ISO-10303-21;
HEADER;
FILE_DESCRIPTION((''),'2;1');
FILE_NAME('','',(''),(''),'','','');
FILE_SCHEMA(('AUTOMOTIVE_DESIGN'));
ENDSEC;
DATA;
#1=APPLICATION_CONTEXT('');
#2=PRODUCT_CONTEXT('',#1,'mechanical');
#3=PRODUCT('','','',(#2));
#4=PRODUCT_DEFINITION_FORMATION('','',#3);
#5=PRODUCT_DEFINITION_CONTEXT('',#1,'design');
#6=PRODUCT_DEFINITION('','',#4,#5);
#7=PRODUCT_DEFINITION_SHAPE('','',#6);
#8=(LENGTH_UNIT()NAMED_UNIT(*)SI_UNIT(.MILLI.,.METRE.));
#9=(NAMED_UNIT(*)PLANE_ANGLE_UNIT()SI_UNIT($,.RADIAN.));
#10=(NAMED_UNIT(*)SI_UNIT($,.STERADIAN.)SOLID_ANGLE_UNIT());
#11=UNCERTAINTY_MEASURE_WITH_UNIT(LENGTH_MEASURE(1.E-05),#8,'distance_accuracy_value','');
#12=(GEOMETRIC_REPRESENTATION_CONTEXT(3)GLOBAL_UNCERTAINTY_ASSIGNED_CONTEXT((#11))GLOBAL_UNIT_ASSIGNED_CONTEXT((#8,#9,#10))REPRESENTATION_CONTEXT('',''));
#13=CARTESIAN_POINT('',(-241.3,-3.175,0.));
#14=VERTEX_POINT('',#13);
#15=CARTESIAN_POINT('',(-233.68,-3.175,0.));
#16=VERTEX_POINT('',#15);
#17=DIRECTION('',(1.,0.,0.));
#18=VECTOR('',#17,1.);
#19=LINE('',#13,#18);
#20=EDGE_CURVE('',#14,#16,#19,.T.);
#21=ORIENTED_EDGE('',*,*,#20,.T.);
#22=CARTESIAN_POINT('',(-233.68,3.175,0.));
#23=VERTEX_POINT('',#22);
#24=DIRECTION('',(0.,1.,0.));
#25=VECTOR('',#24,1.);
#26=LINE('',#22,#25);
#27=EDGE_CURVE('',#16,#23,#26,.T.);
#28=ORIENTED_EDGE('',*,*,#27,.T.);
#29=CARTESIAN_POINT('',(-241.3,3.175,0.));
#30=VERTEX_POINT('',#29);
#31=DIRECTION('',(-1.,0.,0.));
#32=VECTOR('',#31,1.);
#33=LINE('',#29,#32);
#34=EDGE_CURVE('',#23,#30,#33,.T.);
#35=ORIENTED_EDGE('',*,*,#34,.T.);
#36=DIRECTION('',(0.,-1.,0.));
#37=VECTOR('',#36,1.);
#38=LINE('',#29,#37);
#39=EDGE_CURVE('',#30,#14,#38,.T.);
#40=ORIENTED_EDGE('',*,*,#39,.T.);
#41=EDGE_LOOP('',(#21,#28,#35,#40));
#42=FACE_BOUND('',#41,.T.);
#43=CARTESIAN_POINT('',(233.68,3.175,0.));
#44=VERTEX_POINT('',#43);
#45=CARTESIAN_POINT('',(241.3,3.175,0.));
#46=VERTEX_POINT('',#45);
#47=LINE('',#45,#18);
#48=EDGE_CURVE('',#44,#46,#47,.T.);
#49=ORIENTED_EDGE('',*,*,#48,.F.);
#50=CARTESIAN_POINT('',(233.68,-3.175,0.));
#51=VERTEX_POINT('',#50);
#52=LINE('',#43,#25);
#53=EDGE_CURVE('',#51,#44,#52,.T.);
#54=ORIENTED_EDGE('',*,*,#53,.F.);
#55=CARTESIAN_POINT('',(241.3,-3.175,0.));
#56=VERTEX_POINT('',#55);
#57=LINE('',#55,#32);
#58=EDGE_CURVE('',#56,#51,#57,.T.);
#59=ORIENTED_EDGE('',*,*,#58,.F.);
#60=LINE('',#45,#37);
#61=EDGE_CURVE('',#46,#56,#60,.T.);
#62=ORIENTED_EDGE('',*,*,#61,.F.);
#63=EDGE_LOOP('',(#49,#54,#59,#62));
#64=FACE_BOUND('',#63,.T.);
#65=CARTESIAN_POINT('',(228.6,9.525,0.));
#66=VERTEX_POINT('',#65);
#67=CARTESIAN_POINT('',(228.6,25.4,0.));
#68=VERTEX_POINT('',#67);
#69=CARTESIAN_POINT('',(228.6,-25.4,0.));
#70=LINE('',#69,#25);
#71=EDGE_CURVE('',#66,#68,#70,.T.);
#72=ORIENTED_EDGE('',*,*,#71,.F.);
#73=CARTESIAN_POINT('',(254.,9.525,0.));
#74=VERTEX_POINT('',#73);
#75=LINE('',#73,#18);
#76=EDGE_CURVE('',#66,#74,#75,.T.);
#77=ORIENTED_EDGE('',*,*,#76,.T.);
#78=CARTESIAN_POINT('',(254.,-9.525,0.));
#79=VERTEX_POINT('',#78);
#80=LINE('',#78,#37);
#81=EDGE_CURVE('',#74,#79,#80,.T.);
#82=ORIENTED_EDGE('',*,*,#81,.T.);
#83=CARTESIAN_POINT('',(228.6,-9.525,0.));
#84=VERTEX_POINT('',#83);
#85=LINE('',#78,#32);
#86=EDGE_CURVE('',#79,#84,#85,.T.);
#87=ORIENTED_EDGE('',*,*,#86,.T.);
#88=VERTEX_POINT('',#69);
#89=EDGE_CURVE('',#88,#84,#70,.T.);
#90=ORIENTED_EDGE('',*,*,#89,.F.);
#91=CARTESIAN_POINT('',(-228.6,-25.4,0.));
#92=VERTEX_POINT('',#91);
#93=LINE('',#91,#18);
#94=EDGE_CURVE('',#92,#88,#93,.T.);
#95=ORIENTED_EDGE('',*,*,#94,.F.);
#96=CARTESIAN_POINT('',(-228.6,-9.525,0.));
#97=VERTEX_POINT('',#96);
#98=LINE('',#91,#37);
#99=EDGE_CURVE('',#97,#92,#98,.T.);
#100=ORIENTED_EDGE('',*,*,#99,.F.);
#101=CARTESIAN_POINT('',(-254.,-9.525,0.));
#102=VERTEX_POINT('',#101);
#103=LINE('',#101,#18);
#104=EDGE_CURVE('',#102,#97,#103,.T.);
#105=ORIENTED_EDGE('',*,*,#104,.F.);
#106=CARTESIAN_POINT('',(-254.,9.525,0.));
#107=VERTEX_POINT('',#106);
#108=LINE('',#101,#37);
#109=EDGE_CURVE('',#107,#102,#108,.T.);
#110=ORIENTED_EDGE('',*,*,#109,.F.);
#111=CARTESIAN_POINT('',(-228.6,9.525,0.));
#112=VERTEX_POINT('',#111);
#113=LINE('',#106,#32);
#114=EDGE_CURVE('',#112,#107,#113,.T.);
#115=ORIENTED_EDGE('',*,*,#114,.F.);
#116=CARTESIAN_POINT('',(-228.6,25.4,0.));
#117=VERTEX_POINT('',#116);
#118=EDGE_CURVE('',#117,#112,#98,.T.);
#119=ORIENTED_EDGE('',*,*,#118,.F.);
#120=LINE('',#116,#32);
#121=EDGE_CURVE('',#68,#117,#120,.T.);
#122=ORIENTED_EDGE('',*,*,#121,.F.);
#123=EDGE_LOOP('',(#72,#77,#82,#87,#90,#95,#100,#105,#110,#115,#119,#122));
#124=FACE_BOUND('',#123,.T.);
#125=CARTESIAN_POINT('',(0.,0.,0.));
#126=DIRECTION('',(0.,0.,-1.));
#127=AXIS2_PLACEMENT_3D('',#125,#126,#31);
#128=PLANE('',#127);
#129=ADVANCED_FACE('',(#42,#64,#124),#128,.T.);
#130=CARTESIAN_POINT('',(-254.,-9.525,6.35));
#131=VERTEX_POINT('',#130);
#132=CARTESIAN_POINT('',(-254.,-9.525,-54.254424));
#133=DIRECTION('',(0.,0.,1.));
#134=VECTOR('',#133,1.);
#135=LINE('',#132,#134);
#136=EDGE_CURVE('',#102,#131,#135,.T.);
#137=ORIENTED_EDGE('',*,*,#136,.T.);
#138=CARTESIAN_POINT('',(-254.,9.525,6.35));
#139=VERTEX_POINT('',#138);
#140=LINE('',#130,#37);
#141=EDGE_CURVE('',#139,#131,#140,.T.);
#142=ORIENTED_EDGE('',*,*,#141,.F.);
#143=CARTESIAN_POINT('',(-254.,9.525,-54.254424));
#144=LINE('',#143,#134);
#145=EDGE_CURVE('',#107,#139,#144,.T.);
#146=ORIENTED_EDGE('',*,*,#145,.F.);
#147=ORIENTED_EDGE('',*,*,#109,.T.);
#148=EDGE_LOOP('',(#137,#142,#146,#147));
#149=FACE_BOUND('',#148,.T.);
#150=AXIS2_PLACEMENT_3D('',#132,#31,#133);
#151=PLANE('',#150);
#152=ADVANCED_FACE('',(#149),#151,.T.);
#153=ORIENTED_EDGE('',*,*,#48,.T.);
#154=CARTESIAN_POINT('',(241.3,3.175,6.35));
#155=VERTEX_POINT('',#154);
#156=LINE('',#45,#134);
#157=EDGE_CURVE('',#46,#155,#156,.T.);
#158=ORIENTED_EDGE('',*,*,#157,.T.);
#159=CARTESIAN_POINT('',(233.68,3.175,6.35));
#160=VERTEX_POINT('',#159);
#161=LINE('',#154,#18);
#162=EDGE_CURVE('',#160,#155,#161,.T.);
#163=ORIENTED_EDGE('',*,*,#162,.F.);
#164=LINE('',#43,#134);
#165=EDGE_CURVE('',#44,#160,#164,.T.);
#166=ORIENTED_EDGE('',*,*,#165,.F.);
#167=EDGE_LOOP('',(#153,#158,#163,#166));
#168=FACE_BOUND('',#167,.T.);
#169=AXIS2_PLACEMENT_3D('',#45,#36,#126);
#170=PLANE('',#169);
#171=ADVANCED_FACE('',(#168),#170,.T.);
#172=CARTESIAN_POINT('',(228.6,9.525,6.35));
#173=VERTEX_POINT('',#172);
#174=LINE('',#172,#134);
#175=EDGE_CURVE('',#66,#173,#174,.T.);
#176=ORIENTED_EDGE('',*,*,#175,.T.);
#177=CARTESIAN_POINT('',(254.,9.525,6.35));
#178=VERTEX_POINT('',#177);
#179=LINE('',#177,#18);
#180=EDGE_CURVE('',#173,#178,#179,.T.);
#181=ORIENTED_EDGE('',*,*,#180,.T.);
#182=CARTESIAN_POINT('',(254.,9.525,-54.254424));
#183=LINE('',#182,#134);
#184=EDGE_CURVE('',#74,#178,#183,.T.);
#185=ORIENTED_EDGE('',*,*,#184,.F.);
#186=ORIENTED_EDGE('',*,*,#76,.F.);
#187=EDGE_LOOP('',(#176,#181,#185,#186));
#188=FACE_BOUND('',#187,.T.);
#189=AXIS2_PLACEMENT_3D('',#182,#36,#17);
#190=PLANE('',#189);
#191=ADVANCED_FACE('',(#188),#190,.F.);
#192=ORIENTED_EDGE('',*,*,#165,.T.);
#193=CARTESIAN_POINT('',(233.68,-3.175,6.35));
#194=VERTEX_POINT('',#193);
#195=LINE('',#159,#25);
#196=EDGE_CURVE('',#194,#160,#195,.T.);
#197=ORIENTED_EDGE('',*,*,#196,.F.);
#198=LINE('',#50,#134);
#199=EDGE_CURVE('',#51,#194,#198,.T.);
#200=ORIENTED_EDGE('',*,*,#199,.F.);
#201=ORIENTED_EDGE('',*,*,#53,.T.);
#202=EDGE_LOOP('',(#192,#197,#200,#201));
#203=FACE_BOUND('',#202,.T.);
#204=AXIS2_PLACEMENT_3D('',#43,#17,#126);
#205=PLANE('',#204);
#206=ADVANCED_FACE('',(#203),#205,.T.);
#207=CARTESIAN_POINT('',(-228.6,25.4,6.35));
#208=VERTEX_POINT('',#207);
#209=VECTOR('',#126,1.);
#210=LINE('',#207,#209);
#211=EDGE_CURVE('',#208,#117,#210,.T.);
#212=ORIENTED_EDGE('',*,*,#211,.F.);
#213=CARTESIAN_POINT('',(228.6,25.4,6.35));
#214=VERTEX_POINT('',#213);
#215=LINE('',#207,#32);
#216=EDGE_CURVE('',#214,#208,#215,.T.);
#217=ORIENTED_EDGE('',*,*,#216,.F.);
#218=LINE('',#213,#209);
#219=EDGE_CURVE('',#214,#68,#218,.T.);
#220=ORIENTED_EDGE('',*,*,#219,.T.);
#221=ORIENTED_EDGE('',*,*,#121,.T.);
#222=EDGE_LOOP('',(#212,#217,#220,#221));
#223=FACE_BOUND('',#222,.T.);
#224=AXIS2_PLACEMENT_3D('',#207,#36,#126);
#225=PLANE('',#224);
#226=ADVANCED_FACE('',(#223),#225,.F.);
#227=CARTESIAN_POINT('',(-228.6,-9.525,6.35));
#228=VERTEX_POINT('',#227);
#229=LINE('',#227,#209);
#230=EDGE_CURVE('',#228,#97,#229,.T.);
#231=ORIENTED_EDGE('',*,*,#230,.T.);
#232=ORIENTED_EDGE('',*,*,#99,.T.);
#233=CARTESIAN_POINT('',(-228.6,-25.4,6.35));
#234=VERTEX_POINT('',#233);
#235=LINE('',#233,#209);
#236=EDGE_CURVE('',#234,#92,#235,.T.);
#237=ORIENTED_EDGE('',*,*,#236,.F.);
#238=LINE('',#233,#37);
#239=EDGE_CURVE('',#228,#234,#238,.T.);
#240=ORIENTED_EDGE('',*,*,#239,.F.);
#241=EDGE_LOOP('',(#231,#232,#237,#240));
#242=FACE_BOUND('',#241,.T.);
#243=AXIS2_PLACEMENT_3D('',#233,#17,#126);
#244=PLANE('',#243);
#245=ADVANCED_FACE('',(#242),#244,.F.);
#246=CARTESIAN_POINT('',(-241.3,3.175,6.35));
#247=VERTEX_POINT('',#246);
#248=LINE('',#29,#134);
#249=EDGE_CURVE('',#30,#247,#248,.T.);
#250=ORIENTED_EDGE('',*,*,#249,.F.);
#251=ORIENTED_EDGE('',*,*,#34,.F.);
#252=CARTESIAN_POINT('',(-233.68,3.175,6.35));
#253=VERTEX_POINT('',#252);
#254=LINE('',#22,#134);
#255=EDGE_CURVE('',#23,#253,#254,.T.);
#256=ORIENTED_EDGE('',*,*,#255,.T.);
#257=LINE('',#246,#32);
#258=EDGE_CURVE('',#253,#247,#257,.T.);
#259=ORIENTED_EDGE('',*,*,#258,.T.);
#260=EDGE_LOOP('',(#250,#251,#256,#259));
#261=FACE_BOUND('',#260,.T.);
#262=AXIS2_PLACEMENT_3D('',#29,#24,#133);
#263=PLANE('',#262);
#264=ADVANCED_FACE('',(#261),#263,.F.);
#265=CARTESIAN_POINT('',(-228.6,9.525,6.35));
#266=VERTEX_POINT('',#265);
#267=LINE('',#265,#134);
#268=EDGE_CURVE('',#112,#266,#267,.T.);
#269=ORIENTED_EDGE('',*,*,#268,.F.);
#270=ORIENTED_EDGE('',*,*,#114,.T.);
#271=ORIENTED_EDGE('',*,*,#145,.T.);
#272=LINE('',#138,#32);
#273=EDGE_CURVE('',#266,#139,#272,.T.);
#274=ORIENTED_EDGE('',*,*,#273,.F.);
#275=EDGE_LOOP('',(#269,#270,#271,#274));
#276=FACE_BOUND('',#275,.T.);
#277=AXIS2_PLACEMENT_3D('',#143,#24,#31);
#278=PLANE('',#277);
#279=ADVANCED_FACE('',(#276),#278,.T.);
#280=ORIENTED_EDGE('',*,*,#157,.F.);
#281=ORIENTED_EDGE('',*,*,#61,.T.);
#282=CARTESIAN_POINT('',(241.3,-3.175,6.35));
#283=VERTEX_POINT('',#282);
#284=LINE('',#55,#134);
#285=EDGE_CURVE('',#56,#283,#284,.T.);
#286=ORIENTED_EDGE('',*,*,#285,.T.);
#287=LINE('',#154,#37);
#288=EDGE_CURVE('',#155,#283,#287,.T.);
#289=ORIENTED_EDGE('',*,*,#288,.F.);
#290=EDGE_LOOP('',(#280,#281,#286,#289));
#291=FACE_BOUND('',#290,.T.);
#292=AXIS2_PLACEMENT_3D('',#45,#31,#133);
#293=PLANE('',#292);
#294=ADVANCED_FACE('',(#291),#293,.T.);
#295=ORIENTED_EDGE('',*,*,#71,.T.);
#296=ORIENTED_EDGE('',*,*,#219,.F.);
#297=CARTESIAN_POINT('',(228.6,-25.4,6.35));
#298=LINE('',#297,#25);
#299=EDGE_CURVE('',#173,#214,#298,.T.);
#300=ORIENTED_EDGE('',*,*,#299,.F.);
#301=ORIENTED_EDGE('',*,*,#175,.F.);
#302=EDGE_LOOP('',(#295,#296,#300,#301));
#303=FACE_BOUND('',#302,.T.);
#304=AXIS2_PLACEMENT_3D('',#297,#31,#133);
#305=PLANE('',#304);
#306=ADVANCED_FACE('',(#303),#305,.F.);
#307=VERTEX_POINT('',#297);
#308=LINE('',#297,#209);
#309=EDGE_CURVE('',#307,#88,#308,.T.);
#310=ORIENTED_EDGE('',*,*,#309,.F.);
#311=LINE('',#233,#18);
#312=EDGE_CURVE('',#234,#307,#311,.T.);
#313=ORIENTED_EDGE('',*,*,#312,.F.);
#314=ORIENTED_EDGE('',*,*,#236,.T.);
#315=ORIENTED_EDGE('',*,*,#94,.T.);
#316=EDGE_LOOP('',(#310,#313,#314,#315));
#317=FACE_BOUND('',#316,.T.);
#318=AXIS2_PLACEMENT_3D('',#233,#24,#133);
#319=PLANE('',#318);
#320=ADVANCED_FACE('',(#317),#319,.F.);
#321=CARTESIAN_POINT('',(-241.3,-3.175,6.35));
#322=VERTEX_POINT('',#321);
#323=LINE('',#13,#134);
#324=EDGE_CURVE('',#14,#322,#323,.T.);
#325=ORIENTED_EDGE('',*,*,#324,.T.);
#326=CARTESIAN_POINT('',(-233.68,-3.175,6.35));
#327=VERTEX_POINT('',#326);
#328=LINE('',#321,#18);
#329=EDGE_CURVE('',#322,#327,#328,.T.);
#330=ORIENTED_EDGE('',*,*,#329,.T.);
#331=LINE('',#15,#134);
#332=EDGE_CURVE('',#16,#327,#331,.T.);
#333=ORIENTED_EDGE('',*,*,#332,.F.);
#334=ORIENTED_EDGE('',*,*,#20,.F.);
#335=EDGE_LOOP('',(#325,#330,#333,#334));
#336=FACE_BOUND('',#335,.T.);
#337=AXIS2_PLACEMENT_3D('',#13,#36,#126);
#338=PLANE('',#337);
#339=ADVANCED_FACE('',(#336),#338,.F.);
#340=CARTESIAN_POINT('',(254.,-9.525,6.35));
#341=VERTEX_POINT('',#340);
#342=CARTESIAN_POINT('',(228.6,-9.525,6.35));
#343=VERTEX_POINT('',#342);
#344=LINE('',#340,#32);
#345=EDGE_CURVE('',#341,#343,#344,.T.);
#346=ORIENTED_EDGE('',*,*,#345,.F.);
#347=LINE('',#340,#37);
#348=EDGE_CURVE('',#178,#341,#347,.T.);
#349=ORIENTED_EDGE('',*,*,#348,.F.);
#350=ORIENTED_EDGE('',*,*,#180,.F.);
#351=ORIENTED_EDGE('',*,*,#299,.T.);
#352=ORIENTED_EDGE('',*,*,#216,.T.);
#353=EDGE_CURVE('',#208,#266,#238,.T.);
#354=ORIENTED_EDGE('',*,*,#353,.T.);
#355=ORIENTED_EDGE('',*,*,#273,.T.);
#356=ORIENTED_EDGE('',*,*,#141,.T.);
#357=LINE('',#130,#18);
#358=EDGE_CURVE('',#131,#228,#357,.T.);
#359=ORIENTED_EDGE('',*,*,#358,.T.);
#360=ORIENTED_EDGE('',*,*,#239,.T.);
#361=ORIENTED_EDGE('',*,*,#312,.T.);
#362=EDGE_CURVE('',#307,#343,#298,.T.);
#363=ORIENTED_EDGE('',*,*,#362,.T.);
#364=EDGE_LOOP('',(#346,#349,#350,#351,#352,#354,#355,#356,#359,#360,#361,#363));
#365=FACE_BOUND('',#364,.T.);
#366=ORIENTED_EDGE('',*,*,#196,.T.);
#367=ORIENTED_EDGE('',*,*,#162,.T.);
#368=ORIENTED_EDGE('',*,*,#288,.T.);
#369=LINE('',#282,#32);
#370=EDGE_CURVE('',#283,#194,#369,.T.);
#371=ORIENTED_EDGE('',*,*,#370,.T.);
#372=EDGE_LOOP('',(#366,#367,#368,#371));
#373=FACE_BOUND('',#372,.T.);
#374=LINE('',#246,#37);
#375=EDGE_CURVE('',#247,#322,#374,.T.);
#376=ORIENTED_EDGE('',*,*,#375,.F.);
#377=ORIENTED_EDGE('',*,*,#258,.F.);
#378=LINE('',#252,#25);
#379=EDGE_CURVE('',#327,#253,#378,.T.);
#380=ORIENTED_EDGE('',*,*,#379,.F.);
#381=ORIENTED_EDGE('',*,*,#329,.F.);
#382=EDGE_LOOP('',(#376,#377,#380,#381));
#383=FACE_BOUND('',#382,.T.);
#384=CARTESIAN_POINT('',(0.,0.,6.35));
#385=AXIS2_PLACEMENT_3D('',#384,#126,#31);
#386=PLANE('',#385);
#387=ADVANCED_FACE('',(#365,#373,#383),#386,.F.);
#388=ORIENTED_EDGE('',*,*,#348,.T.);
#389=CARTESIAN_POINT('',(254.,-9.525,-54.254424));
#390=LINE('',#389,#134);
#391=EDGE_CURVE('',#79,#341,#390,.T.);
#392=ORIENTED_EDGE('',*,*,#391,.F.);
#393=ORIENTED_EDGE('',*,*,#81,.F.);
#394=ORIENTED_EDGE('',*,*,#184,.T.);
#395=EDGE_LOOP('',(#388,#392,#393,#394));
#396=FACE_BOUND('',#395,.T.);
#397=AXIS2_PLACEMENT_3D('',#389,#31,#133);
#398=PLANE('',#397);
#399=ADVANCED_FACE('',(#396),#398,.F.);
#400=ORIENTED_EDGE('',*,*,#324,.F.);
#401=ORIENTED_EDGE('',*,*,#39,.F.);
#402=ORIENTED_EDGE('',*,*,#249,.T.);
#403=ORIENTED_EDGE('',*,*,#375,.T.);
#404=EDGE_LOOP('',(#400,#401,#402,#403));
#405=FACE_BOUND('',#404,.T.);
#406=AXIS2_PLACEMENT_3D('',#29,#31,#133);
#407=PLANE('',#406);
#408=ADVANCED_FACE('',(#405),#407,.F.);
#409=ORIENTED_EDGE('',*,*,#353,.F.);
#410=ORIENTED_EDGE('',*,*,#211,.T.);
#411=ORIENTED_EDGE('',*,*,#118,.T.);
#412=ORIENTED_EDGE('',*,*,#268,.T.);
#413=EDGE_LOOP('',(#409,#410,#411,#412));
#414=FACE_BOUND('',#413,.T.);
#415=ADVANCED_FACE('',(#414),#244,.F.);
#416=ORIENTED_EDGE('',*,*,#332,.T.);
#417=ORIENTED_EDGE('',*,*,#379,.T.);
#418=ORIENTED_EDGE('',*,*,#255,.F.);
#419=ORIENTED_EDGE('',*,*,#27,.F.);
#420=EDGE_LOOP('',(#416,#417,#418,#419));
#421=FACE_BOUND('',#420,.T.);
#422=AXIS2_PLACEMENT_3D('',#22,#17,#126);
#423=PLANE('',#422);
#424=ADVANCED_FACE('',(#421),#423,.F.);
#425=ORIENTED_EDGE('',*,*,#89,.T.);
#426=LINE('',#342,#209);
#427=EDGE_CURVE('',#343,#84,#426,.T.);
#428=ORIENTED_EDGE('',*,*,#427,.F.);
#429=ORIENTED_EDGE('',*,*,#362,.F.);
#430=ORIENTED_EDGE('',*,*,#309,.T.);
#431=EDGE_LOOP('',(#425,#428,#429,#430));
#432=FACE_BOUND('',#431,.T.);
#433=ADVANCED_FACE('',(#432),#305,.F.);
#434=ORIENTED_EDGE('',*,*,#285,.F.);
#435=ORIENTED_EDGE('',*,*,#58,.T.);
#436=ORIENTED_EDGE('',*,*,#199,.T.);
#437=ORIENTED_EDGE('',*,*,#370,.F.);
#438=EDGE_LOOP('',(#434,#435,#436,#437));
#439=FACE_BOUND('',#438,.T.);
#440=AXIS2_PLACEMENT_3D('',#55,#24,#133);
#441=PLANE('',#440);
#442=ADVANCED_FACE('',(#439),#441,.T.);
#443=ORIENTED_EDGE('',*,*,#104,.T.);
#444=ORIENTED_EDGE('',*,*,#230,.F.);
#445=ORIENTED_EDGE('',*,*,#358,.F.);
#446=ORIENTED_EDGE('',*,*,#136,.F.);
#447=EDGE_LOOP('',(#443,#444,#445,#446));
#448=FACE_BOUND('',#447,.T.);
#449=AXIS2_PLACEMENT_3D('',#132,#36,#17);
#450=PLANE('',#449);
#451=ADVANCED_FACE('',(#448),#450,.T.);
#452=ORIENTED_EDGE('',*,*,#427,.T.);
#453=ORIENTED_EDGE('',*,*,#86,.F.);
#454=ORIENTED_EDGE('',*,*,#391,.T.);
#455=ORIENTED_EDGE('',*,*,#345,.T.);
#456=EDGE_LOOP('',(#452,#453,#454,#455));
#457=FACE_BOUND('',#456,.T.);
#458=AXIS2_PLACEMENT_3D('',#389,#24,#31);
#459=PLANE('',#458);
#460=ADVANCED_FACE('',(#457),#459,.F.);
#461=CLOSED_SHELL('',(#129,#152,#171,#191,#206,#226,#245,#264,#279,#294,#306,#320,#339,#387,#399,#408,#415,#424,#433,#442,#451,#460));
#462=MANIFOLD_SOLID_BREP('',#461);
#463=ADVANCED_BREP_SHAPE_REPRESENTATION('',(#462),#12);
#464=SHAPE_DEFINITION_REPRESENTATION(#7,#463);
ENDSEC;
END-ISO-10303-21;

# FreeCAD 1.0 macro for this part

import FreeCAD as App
import Part
import Sketcher

V = App.Vector
Q = App.Units.Quantity

doc = App.newDocument("Part")
params = doc.addObject("Spreadsheet::Sheet", "Params")
for row, (alias, value) in enumerate([
    ("sketch1_width", "18 in"),
    ("sketch1_height", "2 in"),
    ("pad1_length", "0.25 in"),
    ("sketch2_width", "2 in"),
    ("sketch2_height", "0.75 in"),
    ("pad2_length", "0.25 in"),
    ("sketch3_width", "0.3 in"),
    ("sketch3_height", "0.25 in"),
], start=1):
    params.set(f"A{row}", alias)
    params.set(f"B{row}", "=" + value)
    params.setAlias(f"B{row}", alias)

body = doc.addObject("PartDesign::Body", "Body")

sketch1 = body.newObject("Sketcher::SketchObject", "Sketch")
sketch1.AttachmentSupport = (doc.getObject("XY_Plane"), [""])
sketch1.MapMode = "FlatFace"
sketch1.addGeometry(Part.LineSegment(V(-228.6, 25.4, 0), V(-228.6, -25.4, 0)), False)
sketch1.addGeometry(Part.LineSegment(V(-228.6, -25.4, 0), V(228.6, -25.4, 0)), False)
sketch1.addGeometry(Part.LineSegment(V(228.6, -25.4, 0), V(228.6, 25.4, 0)), False)
sketch1.addGeometry(Part.LineSegment(V(228.6, 25.4, 0), V(-228.6, 25.4, 0)), False)
sketch1.addConstraint(Sketcher.Constraint("Coincident", 0, 2, 1, 1))
sketch1.addConstraint(Sketcher.Constraint("Coincident", 1, 2, 2, 1))
sketch1.addConstraint(Sketcher.Constraint("Coincident", 2, 2, 3, 1))
sketch1.addConstraint(Sketcher.Constraint("Coincident", 3, 2, 0, 1))
sketch1.addConstraint(Sketcher.Constraint("Vertical", 0))
sketch1.addConstraint(Sketcher.Constraint("Horizontal", 1))
sketch1.addConstraint(Sketcher.Constraint("Vertical", 2))
sketch1.addConstraint(Sketcher.Constraint("Horizontal", 3))
sketch1.addConstraint(Sketcher.Constraint("Symmetric", 0, 2, 2, 2, -1, 1))
sketch1.addConstraint(Sketcher.Constraint("DistanceX", 1, 1, 1, 2, Q("18 in")))
sketch1.addConstraint(Sketcher.Constraint("DistanceY", 0, 2, 0, 1, Q("2 in")))
sketch1.setExpression("Constraints[9]", "Params.sketch1_width")
sketch1.setExpression("Constraints[10]", "Params.sketch1_height")
pad1 = body.newObject("PartDesign::Pad", "Pad")
pad1.Profile = sketch1
pad1.setExpression("Length", "Params.pad1_length")

sketch2 = body.newObject("Sketcher::SketchObject", "Sketch001")
sketch2.AttachmentSupport = (doc.getObject("XY_Plane"), [""])
sketch2.MapMode = "FlatFace"
sketch2.AttachmentOffset = App.Placement(V(0, 0, 0.25 * 25.4), App.Rotation())
sketch2.addGeometry(Part.LineSegment(V(-254, 9.525, 0), V(-254, -9.525, 0)), False)
sketch2.addGeometry(Part.LineSegment(V(-254, -9.525, 0), V(-203.2, -9.525, 0)), False)
sketch2.addGeometry(Part.LineSegment(V(-203.2, -9.525, 0), V(-203.2, 9.525, 0)), False)
sketch2.addGeometry(Part.LineSegment(V(-203.2, 9.525, 0), V(-254, 9.525, 0)), False)
sketch2.addConstraint(Sketcher.Constraint("Coincident", 0, 2, 1, 1))
sketch2.addConstraint(Sketcher.Constraint("Coincident", 1, 2, 2, 1))
sketch2.addConstraint(Sketcher.Constraint("Coincident", 2, 2, 3, 1))
sketch2.addConstraint(Sketcher.Constraint("Coincident", 3, 2, 0, 1))
sketch2.addConstraint(Sketcher.Constraint("Vertical", 0))
sketch2.addConstraint(Sketcher.Constraint("Horizontal", 1))
sketch2.addConstraint(Sketcher.Constraint("Vertical", 2))
sketch2.addConstraint(Sketcher.Constraint("Horizontal", 3))
sketch2.addConstraint(Sketcher.Constraint("DistanceX", 1, 1, 1, 2, Q("2 in")))
sketch2.addConstraint(Sketcher.Constraint("DistanceX", 0, 2, -1, 1, Q("10 in")))
sketch2.addConstraint(Sketcher.Constraint("DistanceY", 0, 2, 0, 1, Q("0.75 in")))
sketch2.addConstraint(Sketcher.Constraint("DistanceY", 0, 2, -1, 1, Q("0.375 in")))
sketch2.setExpression("Constraints[8]", "Params.sketch2_width")
sketch2.setExpression("Constraints[10]", "Params.sketch2_height")
pad2 = body.newObject("PartDesign::Pad", "Pad001")
pad2.Profile = sketch2
pad2.setExpression("Length", "Params.pad2_length")
pad2.Reversed = True

sketch3 = body.newObject("Sketcher::SketchObject", "Sketch002")
sketch3.AttachmentSupport = (doc.getObject("XY_Plane"), [""])
sketch3.MapMode = "FlatFace"
sketch3.AttachmentOffset = App.Placement(V(0, 0, 0.25 * 25.4), App.Rotation())
sketch3.addGeometry(Part.LineSegment(V(-241.3, 3.175, 0), V(-241.3, -3.175, 0)), False)
sketch3.addGeometry(Part.LineSegment(V(-241.3, -3.175, 0), V(-233.68, -3.175, 0)), False)
sketch3.addGeometry(Part.LineSegment(V(-233.68, -3.175, 0), V(-233.68, 3.175, 0)), False)
sketch3.addGeometry(Part.LineSegment(V(-233.68, 3.175, 0), V(-241.3, 3.175, 0)), False)
sketch3.addConstraint(Sketcher.Constraint("Coincident", 0, 2, 1, 1))
sketch3.addConstraint(Sketcher.Constraint("Coincident", 1, 2, 2, 1))
sketch3.addConstraint(Sketcher.Constraint("Coincident", 2, 2, 3, 1))
sketch3.addConstraint(Sketcher.Constraint("Coincident", 3, 2, 0, 1))
sketch3.addConstraint(Sketcher.Constraint("Vertical", 0))
sketch3.addConstraint(Sketcher.Constraint("Horizontal", 1))
sketch3.addConstraint(Sketcher.Constraint("Vertical", 2))
sketch3.addConstraint(Sketcher.Constraint("Horizontal", 3))
sketch3.addConstraint(Sketcher.Constraint("DistanceX", 1, 1, 1, 2, Q("0.3 in")))
sketch3.addConstraint(Sketcher.Constraint("DistanceY", 0, 2, 0, 1, Q("0.25 in")))
sketch3.addConstraint(Sketcher.Constraint("DistanceX", 0, 2, -1, 1, Q("9.5 in")))
sketch3.addConstraint(Sketcher.Constraint("DistanceY", 0, 2, -1, 1, Q("0.125 in")))
sketch3.setExpression("Constraints[8]", "Params.sketch3_width")
sketch3.setExpression("Constraints[9]", "Params.sketch3_height")
pocket1 = body.newObject("PartDesign::Pocket", "Pocket")
pocket1.Profile = sketch3
pocket1.Type = "ThroughAll"
doc.recompute()

mirrored = body.newObject("PartDesign::Mirrored", "Mirrored")
mirrored.Originals = [pad2, pocket1]
mirrored.MirrorPlane = (doc.getObject("YZ_Plane"), [""])
body.Tip = mirrored

doc.recompute()
